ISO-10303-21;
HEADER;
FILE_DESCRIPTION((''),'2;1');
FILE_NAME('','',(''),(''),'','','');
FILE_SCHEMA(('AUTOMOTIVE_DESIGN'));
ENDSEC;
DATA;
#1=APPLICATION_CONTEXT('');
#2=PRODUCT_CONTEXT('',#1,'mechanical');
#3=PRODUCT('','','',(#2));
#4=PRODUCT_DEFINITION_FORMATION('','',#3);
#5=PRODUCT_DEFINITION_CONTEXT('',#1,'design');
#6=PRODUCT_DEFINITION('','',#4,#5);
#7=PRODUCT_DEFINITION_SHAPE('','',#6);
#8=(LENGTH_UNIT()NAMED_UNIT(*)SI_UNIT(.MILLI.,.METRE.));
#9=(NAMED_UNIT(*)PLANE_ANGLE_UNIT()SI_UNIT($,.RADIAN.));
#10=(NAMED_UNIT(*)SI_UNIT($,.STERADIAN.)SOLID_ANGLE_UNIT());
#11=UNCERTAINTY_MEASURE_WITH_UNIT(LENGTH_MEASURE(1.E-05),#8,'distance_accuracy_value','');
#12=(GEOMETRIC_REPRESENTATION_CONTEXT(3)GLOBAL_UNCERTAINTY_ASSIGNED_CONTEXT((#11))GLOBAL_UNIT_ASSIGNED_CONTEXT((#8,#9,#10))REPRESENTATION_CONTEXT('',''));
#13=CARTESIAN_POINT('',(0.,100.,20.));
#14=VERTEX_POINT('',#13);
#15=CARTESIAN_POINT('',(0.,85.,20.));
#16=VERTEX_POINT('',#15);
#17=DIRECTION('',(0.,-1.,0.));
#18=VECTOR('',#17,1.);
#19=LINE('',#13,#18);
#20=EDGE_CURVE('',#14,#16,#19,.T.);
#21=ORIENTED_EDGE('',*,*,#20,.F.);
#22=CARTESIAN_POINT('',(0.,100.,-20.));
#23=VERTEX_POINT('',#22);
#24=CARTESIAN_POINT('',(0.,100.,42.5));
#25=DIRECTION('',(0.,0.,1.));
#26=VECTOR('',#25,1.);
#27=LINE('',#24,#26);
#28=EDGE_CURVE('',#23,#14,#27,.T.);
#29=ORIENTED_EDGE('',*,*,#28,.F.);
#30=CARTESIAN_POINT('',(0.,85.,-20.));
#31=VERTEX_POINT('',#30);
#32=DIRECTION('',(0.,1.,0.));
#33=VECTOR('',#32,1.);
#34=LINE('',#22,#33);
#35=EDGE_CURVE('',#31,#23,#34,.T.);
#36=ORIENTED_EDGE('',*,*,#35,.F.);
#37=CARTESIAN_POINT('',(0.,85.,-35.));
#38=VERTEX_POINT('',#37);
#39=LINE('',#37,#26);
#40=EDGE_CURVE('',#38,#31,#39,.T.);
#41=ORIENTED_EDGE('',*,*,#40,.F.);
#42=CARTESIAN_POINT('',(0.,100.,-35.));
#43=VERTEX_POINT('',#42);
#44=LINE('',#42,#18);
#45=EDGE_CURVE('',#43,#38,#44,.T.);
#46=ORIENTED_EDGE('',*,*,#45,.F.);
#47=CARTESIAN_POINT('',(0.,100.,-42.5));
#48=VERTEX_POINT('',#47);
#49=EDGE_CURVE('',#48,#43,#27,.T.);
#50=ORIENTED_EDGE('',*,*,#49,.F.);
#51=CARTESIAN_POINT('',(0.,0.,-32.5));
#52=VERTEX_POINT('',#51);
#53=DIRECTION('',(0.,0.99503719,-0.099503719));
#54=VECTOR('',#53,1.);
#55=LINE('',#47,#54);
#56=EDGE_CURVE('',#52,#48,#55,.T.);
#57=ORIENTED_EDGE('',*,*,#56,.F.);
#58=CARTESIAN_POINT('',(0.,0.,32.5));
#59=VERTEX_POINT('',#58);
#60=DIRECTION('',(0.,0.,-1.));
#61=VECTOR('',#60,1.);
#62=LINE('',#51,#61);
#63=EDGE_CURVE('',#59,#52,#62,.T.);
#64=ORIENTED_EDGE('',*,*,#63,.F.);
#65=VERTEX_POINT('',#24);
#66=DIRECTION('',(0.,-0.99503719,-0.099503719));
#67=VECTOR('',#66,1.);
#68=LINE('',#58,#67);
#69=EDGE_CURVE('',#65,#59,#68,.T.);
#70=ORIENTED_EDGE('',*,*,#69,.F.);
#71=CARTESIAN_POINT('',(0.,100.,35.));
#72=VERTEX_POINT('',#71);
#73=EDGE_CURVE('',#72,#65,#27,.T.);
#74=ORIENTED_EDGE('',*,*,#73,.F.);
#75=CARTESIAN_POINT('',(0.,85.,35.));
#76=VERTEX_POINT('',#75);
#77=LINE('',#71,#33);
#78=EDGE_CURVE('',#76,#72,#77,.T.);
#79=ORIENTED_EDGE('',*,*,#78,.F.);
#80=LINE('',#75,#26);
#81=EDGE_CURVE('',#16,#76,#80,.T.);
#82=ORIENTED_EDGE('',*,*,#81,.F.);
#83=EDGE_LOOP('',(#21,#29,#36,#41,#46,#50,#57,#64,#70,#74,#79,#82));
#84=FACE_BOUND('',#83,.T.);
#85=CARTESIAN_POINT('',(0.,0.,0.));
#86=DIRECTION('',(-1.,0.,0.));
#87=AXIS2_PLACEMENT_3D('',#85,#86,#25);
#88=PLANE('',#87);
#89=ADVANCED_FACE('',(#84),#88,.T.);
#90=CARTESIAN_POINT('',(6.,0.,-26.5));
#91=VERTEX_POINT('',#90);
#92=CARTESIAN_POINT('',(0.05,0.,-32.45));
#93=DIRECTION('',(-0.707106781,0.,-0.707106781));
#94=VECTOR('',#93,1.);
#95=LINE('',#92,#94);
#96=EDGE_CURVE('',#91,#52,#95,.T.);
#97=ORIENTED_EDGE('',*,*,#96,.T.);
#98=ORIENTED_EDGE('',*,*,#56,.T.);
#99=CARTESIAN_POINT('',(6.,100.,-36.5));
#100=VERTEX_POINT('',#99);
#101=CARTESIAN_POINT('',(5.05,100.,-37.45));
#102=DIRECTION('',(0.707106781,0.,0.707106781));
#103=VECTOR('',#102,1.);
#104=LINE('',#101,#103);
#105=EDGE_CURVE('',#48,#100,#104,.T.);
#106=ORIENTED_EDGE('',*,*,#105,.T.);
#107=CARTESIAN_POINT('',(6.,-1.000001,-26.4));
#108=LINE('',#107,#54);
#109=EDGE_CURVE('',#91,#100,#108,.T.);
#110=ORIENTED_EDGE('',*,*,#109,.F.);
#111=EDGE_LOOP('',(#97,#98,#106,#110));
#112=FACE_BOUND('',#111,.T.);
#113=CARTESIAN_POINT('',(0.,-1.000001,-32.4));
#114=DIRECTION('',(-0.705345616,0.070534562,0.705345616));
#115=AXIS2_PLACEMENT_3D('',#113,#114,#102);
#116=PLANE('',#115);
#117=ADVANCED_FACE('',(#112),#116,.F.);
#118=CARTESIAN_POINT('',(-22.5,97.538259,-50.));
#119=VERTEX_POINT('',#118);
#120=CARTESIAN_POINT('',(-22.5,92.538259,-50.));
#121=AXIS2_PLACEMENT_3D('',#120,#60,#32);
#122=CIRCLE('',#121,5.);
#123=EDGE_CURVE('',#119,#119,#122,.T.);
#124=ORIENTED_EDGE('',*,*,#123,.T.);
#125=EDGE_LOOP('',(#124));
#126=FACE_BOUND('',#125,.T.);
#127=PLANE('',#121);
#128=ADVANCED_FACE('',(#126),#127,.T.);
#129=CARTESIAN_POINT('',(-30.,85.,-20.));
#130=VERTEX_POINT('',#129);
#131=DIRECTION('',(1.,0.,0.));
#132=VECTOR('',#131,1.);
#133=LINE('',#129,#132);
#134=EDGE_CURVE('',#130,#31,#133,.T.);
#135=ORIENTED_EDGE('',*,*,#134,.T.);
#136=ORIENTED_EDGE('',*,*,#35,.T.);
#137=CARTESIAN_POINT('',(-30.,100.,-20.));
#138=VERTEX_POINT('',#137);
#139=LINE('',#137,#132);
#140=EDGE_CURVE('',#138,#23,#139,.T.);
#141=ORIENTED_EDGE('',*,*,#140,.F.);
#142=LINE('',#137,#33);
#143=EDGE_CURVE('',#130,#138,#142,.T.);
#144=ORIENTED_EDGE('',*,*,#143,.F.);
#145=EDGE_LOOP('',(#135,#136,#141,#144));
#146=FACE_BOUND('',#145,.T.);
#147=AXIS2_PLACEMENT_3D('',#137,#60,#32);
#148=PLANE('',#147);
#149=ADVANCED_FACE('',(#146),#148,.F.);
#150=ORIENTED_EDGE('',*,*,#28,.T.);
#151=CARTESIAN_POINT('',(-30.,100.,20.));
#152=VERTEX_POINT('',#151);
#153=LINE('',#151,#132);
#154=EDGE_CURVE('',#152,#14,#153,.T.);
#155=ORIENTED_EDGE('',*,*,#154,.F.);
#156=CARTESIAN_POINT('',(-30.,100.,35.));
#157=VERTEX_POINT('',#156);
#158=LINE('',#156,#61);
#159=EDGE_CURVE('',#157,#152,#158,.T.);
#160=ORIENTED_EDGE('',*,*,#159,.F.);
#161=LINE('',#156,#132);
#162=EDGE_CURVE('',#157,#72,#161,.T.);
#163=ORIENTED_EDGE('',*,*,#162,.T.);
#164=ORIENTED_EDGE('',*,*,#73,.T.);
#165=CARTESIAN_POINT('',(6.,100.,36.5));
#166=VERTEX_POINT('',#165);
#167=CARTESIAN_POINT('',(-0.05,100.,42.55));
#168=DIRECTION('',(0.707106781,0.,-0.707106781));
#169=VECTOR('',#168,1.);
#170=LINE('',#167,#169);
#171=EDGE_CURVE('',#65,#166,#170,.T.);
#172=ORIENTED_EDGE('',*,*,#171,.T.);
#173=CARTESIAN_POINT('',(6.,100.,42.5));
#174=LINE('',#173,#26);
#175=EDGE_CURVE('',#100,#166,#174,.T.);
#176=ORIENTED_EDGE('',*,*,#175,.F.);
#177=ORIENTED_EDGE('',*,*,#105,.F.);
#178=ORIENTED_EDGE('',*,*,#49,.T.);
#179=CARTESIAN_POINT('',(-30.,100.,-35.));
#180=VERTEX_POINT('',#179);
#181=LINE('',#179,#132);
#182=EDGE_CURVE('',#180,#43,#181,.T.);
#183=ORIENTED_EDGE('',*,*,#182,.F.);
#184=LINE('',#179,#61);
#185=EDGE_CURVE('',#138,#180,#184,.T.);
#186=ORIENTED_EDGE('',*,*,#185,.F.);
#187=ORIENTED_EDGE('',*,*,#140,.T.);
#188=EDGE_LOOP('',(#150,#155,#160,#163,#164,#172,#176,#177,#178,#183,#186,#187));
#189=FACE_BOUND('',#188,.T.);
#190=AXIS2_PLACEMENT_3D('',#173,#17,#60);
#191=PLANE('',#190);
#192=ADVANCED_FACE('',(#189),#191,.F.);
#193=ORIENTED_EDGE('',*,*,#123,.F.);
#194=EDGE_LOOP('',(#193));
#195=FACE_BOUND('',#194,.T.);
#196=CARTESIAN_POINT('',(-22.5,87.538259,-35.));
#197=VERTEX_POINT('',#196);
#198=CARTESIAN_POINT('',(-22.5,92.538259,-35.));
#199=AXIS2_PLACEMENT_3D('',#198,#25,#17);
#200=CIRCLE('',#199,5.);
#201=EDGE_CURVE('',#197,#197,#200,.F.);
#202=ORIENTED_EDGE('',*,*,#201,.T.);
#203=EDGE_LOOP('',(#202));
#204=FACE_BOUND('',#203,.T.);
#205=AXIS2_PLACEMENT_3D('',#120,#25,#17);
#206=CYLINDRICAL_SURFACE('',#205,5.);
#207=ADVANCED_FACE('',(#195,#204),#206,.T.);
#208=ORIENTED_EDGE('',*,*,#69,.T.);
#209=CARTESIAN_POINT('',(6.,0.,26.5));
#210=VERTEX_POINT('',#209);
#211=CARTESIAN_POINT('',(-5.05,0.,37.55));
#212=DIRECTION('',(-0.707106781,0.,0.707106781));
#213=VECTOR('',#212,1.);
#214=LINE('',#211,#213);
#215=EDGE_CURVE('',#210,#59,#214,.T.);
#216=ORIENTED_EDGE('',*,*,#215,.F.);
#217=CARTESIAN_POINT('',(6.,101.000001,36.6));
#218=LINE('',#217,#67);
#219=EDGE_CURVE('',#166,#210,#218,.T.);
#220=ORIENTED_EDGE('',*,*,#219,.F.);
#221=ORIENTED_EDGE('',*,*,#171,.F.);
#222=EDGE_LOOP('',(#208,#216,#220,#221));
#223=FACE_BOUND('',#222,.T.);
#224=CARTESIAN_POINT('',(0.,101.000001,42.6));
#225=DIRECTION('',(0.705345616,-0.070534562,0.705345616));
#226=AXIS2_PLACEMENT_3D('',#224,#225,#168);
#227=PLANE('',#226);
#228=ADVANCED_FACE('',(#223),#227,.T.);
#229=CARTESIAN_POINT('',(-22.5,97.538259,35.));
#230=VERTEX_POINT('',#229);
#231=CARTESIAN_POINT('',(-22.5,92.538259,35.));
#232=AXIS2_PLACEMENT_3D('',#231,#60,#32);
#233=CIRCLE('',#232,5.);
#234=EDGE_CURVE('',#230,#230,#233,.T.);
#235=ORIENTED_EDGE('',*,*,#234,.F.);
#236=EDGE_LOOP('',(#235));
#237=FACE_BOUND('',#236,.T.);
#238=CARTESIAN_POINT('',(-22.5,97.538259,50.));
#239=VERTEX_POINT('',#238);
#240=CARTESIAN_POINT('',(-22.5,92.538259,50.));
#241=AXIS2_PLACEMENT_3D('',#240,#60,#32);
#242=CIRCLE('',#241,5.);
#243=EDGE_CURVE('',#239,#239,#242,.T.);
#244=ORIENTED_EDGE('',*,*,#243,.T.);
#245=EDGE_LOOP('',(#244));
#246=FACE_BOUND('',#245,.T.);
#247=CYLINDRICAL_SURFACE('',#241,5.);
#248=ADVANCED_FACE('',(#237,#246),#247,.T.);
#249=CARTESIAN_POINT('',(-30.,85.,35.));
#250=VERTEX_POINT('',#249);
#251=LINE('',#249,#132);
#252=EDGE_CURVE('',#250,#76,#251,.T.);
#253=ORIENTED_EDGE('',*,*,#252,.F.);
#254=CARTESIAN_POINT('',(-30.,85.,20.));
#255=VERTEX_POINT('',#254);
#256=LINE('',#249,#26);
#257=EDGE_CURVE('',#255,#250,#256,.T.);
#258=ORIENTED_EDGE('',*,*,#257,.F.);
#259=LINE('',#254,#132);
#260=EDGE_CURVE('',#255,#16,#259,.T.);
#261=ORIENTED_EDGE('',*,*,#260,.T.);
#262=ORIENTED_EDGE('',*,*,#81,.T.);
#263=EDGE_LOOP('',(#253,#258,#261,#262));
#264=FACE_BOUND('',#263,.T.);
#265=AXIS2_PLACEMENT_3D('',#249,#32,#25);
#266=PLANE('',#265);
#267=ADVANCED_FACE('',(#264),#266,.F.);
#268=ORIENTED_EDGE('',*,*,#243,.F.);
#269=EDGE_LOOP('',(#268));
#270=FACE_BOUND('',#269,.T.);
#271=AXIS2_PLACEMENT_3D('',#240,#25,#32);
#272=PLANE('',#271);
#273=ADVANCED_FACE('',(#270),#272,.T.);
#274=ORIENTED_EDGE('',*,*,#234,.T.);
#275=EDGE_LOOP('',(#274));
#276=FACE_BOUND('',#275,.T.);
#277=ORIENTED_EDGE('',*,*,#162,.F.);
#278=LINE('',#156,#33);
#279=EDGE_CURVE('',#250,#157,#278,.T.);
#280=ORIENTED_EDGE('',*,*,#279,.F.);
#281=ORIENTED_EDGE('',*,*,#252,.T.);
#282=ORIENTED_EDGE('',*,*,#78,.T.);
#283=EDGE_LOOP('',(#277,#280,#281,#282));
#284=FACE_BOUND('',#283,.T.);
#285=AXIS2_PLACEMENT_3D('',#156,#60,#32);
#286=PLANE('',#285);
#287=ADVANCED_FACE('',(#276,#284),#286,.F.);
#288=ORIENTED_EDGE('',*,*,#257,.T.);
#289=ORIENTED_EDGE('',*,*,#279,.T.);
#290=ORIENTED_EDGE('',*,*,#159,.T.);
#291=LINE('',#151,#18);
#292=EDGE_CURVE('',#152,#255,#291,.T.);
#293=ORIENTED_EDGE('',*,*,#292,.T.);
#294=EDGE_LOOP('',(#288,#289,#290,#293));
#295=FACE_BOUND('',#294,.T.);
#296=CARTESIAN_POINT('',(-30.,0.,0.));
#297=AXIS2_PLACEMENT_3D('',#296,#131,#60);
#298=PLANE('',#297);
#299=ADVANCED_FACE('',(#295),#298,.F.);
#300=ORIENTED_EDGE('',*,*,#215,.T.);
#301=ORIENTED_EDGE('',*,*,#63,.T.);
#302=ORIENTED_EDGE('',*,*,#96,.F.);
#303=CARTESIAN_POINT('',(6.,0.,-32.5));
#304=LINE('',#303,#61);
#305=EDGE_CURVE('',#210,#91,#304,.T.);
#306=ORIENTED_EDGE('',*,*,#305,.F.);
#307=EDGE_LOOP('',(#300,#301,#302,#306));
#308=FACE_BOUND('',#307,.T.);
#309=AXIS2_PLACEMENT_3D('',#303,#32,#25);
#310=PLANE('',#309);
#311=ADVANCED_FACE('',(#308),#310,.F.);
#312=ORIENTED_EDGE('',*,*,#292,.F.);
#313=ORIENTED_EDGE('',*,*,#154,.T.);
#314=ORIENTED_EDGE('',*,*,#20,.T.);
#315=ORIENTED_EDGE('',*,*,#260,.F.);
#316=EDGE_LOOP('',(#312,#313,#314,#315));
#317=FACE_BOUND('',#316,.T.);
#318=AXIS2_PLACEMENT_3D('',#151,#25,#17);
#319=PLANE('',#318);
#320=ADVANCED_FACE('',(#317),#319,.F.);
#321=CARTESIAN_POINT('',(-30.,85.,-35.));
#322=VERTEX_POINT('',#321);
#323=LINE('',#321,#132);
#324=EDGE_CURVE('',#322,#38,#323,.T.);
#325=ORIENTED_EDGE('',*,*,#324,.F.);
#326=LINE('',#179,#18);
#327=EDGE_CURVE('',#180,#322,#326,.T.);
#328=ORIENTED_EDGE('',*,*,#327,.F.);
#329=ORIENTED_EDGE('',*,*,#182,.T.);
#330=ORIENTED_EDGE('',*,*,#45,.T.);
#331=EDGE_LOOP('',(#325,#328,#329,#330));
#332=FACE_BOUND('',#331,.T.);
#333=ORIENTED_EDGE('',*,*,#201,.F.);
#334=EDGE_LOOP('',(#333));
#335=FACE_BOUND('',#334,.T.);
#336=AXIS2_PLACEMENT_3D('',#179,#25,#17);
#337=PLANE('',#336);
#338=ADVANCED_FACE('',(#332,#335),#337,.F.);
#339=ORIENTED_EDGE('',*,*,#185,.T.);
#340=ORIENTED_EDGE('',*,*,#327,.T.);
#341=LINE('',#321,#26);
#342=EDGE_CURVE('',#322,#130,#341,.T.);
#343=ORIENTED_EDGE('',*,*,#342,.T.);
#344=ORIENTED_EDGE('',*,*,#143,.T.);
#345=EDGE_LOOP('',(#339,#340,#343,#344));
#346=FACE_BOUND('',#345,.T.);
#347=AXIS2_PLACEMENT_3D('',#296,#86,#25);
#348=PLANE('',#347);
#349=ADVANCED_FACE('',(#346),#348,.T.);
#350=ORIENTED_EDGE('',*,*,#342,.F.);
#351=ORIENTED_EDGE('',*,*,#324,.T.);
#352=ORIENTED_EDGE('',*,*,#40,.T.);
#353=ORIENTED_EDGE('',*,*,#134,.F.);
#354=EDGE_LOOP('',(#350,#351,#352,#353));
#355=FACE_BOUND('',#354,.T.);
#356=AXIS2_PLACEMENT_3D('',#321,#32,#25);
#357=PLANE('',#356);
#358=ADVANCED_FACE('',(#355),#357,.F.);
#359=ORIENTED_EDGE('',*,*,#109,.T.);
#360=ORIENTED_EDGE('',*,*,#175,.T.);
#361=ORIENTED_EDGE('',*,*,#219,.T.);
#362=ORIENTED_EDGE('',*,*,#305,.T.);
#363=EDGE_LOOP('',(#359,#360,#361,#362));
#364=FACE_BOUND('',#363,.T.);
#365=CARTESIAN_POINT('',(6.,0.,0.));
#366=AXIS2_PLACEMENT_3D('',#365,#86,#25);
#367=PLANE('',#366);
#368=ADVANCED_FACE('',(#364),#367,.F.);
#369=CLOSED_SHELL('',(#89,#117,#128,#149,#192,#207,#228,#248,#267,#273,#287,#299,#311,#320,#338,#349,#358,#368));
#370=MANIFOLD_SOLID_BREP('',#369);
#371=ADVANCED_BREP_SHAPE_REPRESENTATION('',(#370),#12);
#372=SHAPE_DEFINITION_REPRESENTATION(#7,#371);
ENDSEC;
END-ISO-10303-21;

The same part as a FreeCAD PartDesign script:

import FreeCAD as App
import Part
import Sketcher

V = App.Vector
Q = App.Units.Quantity


def add_polygon(sketch, points):
    """Adds a closed chain of lines whose ends are joined by coincident constraints."""
    first, n = sketch.GeometryCount, len(points)
    for a, b in zip(points, points[1:] + points[:1]):
        sketch.addGeometry(Part.LineSegment(App.Vector(*a, 0), App.Vector(*b, 0)), False)
    for i in range(n):
        sketch.addConstraint(Sketcher.Constraint("Coincident", first + i, 2, first + (i + 1) % n, 1))

doc = App.newDocument("Part")
body = doc.addObject("PartDesign::Body", "Body")

# Sketch on YZ plane
sketch1 = body.newObject("Sketcher::SketchObject", "Sketch")
sketch1.AttachmentSupport = (doc.getObject("YZ_Plane"), [""])
sketch1.MapMode = "FlatFace"
add_polygon(sketch1, [(0, 32), (0, -32), (100, -42), (100, 42)])  # lines 0-3
sketch1.addConstraint(Sketcher.Constraint("Vertical", 0))
sketch1.addConstraint(Sketcher.Constraint("Vertical", 2))
sketch1.addConstraint(Sketcher.Constraint("Symmetric", 0, 2, 3, 2, -1, 1))
sketch1.addConstraint(Sketcher.Constraint("Equal", 1, 3))
sketch1.addConstraint(Sketcher.Constraint("DistanceY", 0, 2, 0, 1, Q("65 mm")))
sketch1.addConstraint(Sketcher.Constraint("DistanceY", 2, 1, 2, 2, Q("85 mm")))
sketch1.addConstraint(Sketcher.Constraint("DistanceX", -1, 1, 1, 2, Q("100 mm")))
pad1 = body.newObject("PartDesign::Pad", "Pad")
pad1.Profile = sketch1
pad1.Length = 6

# Sketch on YZ plane
sketch2 = body.newObject("Sketcher::SketchObject", "Sketch001")
sketch2.AttachmentSupport = (doc.getObject("YZ_Plane"), [""])
sketch2.MapMode = "FlatFace"
add_polygon(sketch2, [(100, -35), (85, -35), (85, -20), (100, -20)])  # lines 0-3
add_polygon(sketch2, [(100, 20), (85, 20), (85, 35), (100, 35)])  # lines 4-7
sketch2.addConstraint(Sketcher.Constraint("Horizontal", 0))
sketch2.addConstraint(Sketcher.Constraint("Vertical", 1))
sketch2.addConstraint(Sketcher.Constraint("Horizontal", 2))
sketch2.addConstraint(Sketcher.Constraint("Vertical", 3))
sketch2.addConstraint(Sketcher.Constraint("Horizontal", 4))
sketch2.addConstraint(Sketcher.Constraint("Vertical", 5))
sketch2.addConstraint(Sketcher.Constraint("Horizontal", 6))
sketch2.addConstraint(Sketcher.Constraint("Vertical", 7))
sketch2.addConstraint(Sketcher.Constraint("Symmetric", 1, 2, 4, 2, -1))
sketch2.addConstraint(Sketcher.Constraint("Symmetric", 3, 2, 6, 2, -1))
sketch2.addConstraint(Sketcher.Constraint("Equal", 6, 1))
sketch2.addConstraint(Sketcher.Constraint("DistanceX", 0, 2, 0, 1, Q("15 mm")))
sketch2.addConstraint(Sketcher.Constraint("DistanceX", -1, 1, 0, 2, Q("85 mm")))
sketch2.addConstraint(Sketcher.Constraint("DistanceY", 0, 2, -1, 1, Q("35 mm")))
pad2 = body.newObject("PartDesign::Pad", "Pad001")
pad2.Profile = sketch2
pad2.Length = 30
pad2.Reversed = True

# Sketch on XY plane
sketch3 = body.newObject("Sketcher::SketchObject", "Sketch002")
sketch3.AttachmentSupport = (doc.getObject("XY_Plane"), [""])
sketch3.MapMode = "FlatFace"
sketch3.AttachmentOffset = App.Placement(V(0, 0, -35), App.Rotation())
sketch3.addGeometry(Part.Circle(V(-22, 93, 0), V(0, 0, 1), 5), False)
sketch3.addConstraint(Sketcher.Constraint("Diameter", 0, Q("10 mm")))
sketch3.addConstraint(Sketcher.Constraint("DistanceX", 0, 3, -1, 1, Q("22.5 mm")))
sketch3.addConstraint(Sketcher.Constraint("DistanceY", -1, 1, 0, 3, Q("92.538259 mm")))
pad3 = body.newObject("PartDesign::Pad", "Pad002")
pad3.Profile = sketch3
pad3.Length = 15
pad3.Reversed = True
doc.recompute()

mirrored = body.newObject("PartDesign::Mirrored", "Mirrored")
mirrored.Originals = [pad3]
mirrored.MirrorPlane = (doc.getObject("XY_Plane"), [""])
body.Tip = mirrored

# Sketch on XZ plane
sketch4 = body.newObject("Sketcher::SketchObject", "Sketch003")
sketch4.AttachmentSupport = (doc.getObject("XZ_Plane"), [""])
sketch4.MapMode = "FlatFace"
sketch4.AttachmentOffset = App.Placement(V(0, 0, -100), App.Rotation())
add_polygon(sketch4, [(6, 36), (0, 42), (6, 42)])  # lines 0-2
sketch4.addConstraint(Sketcher.Constraint("Horizontal", 1))
sketch4.addConstraint(Sketcher.Constraint("Vertical", 2))
sketch4.addConstraint(Sketcher.Constraint("PointOnObject", 0, 2, -2))
sketch4.addConstraint(Sketcher.Constraint("Equal", 1, 2))
sketch4.addConstraint(Sketcher.Constraint("DistanceX", 1, 1, 1, 2, Q("6 mm")))
sketch4.addConstraint(Sketcher.Constraint("DistanceY", -1, 1, 0, 2, Q("42.5 mm")))

# Sketch on an angled plane
sketch5 = body.newObject("Sketcher::SketchObject", "Sketch004")
sketch5.Placement = App.Placement(V(0, -3.217822, 32.178218), App.Rotation(V(0, 0.99503719, 0.099503719), V(1, 0, 0), V(0, 0.099503719, -0.99503719), "ZXY"))
sketch5.addGeometry(Part.LineSegment(V(104, 6, 0), V(3, 6, 0)), False)
sketch5.addConstraint(Sketcher.Constraint("Horizontal", 0))
sketch5.addConstraint(Sketcher.Constraint("DistanceY", -1, 1, 0, 1, Q("6 mm")))
sketch5.addConstraint(Sketcher.Constraint("DistanceX", 0, 2, 0, 1, Q("100.498756 mm")))
sketch5.addConstraint(Sketcher.Constraint("DistanceX", -1, 1, 0, 2, Q("3.233871 mm")))
doc.recompute()

subtractivepipe = body.newObject("PartDesign::SubtractivePipe", "SubtractivePipe")
subtractivepipe.Profile = sketch4
subtractivepipe.Spine = (sketch5, ["Edge1"])

# Sketch on XZ plane
sketch6 = body.newObject("Sketcher::SketchObject", "Sketch005")
sketch6.AttachmentSupport = (doc.getObject("XZ_Plane"), [""])
sketch6.MapMode = "FlatFace"
sketch6.AttachmentOffset = App.Placement(V(0, 0, -100), App.Rotation())
add_polygon(sketch6, [(0, -42), (6, -36), (6, -42)])  # lines 0-2
sketch6.addConstraint(Sketcher.Constraint("Vertical", 1))
sketch6.addConstraint(Sketcher.Constraint("Horizontal", 2))
sketch6.addConstraint(Sketcher.Constraint("PointOnObject", 2, 2, -2))
sketch6.addConstraint(Sketcher.Constraint("Equal", 2, 1))
sketch6.addConstraint(Sketcher.Constraint("DistanceX", 2, 2, 2, 1, Q("6 mm")))
sketch6.addConstraint(Sketcher.Constraint("DistanceY", 0, 2, -1, 1, Q("36.5 mm")))

# Sketch on an angled plane
sketch7 = body.newObject("Sketcher::SketchObject", "Sketch006")
sketch7.Placement = App.Placement(V(0, -3.217822, -32.178218), App.Rotation(V(0, -0.99503719, 0.099503719), V(1, 0, 0), V(0, 0.099503719, 0.99503719), "ZXY"))
sketch7.addGeometry(Part.LineSegment(V(-3, 6, 0), V(-104, 6, 0)), False)
sketch7.addConstraint(Sketcher.Constraint("Horizontal", 0))
sketch7.addConstraint(Sketcher.Constraint("DistanceY", -1, 1, 0, 1, Q("6 mm")))
sketch7.addConstraint(Sketcher.Constraint("DistanceX", 0, 2, 0, 1, Q("100.498756 mm")))
sketch7.addConstraint(Sketcher.Constraint("DistanceX", 0, 1, -1, 1, Q("3.233871 mm")))
doc.recompute()

subtractivepipe2 = body.newObject("PartDesign::SubtractivePipe", "SubtractivePipe001")
subtractivepipe2.Profile = sketch6
subtractivepipe2.Spine = (sketch7, ["Edge1"])

doc.recompute()
